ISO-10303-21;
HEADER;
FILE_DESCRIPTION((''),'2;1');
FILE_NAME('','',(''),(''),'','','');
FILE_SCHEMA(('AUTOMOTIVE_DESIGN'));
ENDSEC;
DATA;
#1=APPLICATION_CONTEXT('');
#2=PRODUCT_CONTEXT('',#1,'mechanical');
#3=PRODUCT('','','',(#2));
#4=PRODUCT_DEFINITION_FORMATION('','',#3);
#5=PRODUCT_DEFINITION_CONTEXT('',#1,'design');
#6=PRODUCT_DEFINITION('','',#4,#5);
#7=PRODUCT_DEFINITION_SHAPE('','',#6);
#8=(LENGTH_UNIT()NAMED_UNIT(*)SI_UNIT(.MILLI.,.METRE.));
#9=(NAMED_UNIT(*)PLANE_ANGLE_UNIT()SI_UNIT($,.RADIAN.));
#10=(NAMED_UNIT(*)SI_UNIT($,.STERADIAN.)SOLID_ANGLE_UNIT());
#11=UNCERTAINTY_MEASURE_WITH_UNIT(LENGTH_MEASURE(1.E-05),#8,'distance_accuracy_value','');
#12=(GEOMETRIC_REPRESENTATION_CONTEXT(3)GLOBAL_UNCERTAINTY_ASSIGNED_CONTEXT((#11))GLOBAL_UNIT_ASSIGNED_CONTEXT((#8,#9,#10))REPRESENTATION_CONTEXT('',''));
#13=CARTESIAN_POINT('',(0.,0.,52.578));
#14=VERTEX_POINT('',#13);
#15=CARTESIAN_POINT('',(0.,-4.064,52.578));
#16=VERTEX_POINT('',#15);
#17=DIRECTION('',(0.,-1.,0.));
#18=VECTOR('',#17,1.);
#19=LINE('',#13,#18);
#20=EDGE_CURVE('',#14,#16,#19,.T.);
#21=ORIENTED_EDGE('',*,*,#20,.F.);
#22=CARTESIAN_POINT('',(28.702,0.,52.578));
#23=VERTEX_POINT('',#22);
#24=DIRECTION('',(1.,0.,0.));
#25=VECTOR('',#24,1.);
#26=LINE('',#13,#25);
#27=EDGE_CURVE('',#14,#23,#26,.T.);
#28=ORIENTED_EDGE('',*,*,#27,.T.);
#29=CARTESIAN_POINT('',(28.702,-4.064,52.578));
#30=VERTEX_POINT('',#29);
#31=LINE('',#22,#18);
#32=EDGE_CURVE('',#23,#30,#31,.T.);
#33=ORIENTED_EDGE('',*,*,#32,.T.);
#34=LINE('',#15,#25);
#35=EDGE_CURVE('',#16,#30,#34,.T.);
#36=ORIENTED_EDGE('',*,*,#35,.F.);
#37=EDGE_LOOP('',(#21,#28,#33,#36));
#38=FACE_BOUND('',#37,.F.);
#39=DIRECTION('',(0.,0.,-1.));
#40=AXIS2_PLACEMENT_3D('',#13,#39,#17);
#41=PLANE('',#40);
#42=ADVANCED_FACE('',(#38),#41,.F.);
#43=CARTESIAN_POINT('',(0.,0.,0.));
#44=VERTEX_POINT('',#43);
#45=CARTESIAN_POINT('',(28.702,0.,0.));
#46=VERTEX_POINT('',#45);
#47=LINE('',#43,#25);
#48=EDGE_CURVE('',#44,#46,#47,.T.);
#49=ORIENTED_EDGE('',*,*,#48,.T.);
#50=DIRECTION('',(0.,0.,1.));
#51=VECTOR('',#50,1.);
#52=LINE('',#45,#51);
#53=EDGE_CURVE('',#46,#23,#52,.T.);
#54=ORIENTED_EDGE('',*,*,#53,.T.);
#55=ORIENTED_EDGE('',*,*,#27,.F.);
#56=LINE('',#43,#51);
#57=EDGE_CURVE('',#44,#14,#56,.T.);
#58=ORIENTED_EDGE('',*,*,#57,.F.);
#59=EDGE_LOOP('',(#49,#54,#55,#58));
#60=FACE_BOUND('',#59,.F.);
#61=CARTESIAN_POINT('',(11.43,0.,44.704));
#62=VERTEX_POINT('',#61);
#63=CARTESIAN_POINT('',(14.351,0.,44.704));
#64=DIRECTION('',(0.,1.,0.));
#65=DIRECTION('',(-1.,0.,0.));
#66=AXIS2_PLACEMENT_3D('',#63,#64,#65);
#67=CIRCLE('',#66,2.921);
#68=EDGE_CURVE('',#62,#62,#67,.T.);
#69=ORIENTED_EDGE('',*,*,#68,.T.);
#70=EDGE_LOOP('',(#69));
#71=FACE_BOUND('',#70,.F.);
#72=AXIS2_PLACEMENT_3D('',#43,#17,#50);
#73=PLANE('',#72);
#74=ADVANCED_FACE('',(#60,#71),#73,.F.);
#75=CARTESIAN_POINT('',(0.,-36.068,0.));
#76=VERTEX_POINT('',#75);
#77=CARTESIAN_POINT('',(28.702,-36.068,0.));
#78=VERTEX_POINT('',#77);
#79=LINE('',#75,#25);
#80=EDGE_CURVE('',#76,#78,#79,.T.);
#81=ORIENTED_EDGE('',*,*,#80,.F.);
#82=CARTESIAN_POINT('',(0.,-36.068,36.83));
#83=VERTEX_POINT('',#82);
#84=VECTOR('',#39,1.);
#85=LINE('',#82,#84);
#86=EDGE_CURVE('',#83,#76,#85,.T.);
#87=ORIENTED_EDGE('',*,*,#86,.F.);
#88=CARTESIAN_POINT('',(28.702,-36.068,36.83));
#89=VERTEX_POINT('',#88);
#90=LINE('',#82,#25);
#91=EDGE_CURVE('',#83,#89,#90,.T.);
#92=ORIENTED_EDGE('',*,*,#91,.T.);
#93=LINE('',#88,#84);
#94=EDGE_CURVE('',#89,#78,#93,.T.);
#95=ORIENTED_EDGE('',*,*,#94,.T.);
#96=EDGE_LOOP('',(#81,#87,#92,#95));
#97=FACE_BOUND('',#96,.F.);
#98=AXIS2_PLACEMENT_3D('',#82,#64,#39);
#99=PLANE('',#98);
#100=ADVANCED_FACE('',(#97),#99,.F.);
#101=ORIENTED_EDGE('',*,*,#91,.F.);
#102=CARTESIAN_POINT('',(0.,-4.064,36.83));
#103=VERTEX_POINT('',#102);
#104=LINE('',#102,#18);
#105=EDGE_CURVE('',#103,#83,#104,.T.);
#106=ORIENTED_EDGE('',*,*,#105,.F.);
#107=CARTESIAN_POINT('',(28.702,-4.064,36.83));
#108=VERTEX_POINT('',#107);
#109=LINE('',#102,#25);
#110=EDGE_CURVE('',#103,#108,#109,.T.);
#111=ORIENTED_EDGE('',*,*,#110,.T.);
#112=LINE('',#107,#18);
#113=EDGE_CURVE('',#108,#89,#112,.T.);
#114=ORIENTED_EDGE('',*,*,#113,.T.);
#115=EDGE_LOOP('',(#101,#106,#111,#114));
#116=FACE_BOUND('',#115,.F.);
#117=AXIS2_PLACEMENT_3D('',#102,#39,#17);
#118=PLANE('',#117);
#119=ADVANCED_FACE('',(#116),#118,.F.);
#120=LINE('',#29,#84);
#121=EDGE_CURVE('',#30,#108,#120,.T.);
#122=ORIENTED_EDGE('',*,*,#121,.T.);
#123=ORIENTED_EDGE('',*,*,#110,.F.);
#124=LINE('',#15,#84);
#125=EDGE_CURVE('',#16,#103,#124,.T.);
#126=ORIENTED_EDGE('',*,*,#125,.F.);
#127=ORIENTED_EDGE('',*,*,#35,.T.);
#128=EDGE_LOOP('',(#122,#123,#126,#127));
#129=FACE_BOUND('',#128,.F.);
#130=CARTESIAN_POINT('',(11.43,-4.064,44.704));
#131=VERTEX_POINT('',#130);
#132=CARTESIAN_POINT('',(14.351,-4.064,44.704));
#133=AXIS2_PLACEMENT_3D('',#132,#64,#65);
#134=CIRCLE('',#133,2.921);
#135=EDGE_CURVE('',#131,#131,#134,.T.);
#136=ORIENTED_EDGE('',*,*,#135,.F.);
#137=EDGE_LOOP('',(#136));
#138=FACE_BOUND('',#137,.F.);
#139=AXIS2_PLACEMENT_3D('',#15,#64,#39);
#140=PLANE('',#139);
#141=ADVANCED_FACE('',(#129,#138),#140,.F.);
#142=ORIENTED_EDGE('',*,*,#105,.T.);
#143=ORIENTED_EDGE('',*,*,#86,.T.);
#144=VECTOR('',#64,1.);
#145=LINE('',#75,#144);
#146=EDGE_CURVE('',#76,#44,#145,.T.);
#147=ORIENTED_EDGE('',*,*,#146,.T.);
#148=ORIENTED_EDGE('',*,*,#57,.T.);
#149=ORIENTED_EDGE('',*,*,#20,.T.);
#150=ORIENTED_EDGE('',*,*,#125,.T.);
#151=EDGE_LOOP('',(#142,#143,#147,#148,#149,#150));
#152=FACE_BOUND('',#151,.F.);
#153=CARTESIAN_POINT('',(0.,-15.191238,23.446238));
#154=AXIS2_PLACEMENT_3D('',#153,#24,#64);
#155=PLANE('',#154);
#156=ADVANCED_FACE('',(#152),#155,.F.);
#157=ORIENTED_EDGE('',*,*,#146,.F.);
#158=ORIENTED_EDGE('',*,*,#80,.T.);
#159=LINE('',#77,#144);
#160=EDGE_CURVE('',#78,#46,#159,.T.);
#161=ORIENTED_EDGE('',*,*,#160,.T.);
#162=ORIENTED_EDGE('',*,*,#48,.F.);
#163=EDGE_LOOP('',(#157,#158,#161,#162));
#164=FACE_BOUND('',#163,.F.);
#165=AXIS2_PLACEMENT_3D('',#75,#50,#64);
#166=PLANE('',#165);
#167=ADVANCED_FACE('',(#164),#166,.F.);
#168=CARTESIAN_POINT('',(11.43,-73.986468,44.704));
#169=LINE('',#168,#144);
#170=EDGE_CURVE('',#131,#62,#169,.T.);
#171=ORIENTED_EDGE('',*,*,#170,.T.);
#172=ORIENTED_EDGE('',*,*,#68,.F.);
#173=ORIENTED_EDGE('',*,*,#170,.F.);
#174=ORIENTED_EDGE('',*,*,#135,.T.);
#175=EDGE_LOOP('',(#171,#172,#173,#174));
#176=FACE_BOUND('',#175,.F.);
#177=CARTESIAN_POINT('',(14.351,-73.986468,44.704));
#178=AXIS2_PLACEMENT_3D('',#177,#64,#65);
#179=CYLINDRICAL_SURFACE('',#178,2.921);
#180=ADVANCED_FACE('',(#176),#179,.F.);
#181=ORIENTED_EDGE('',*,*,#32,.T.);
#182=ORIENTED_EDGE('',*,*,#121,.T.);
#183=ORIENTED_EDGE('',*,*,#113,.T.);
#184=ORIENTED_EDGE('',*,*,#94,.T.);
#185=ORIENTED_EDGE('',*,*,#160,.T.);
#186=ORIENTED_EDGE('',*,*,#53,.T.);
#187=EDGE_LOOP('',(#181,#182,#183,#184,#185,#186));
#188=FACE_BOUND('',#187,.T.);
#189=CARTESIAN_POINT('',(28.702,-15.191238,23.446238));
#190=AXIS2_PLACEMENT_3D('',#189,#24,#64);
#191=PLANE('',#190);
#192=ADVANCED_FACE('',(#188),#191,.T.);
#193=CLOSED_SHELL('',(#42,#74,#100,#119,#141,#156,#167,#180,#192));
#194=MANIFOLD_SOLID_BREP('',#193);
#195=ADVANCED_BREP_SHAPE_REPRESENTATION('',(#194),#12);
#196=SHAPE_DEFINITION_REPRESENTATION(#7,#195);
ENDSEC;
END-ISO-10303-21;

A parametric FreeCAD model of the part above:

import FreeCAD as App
import Part
import Sketcher
from FreeCAD import Vector
Q = App.Units.Quantity

doc = App.newDocument("Part")
body = doc.addObject("PartDesign::Body", "Body")

# Sketch on YZ plane
sketch1 = body.newObject("Sketcher::SketchObject", "Sketch")
sketch1.AttachmentSupport = (doc.getObject("YZ_Plane"), [""])
sketch1.MapMode = "FlatFace"
sketch1.addGeometry([
    Part.LineSegment(Vector(-36.1, 0, 0), Vector(0, 0, 0)),  # 0
    Part.LineSegment(Vector(0, 0, 0), Vector(0, 52.6, 0)),  # 1
    Part.LineSegment(Vector(0, 52.6, 0), Vector(-4.1, 52.6, 0)),  # 2
    Part.LineSegment(Vector(-4.1, 52.6, 0), Vector(-4.1, 36.8, 0)),  # 3
    Part.LineSegment(Vector(-4.1, 36.8, 0), Vector(-36.1, 36.8, 0)),  # 4
    Part.LineSegment(Vector(-36.1, 36.8, 0), Vector(-36.1, 0, 0)),  # 5
], False)
sketch1.addConstraint([
    Sketcher.Constraint("Coincident", 0, 2, 1, 1),
    Sketcher.Constraint("Coincident", 1, 2, 2, 1),
    Sketcher.Constraint("Coincident", 2, 2, 3, 1),
    Sketcher.Constraint("Coincident", 3, 2, 4, 1),
    Sketcher.Constraint("Coincident", 4, 2, 5, 1),
    Sketcher.Constraint("Coincident", 5, 2, 0, 1),
    Sketcher.Constraint("Horizontal", 0),
    Sketcher.Constraint("Vertical", 1),
    Sketcher.Constraint("Horizontal", 2),
    Sketcher.Constraint("Vertical", 3),
    Sketcher.Constraint("Horizontal", 4),
    Sketcher.Constraint("Vertical", 5),
    Sketcher.Constraint("Coincident", 0, 2, -1, 1),
    Sketcher.Constraint("DistanceX", 0, 1, 0, 2, Q("1.42 in")),
    Sketcher.Constraint("DistanceX", 2, 2, 2, 1, Q("0.16 in")),
    Sketcher.Constraint("DistanceY", 1, 1, 1, 2, Q("2.07 in")),
    Sketcher.Constraint("DistanceY", 3, 2, 3, 1, Q("0.62 in")),
])
pad1 = body.newObject("PartDesign::Pad", "Pad")
pad1.Profile = sketch1
pad1.Length = Q("1.13 in")

# Sketch on XZ plane
sketch2 = body.newObject("Sketcher::SketchObject", "Sketch001")
sketch2.AttachmentSupport = (doc.getObject("XZ_Plane"), [""])
sketch2.MapMode = "FlatFace"
sketch2.AttachmentOffset = App.Placement(Vector(0, 0, 0.16 * 25.4), App.Rotation())
sketch2.addGeometry(Part.Circle(Vector(14.4, 44.7, 0), Vector(0, 0, 1), 2.9), False)
sketch2.addConstraint([
    Sketcher.Constraint("Diameter", 0, Q("0.23 in")),
    Sketcher.Constraint("DistanceY", -1, 1, 0, 3, Q("1.76 in")),
    Sketcher.Constraint("DistanceX", -1, 1, 0, 3, Q("0.565 in")),
])
doc.recompute()
hole = body.newObject("PartDesign::Hole", "Hole")
hole.Profile = sketch2
hole.ThreadType = "None"
hole.Diameter = Q("0.23 in")
hole.DepthType = "ThroughAll"

doc.recompute()
